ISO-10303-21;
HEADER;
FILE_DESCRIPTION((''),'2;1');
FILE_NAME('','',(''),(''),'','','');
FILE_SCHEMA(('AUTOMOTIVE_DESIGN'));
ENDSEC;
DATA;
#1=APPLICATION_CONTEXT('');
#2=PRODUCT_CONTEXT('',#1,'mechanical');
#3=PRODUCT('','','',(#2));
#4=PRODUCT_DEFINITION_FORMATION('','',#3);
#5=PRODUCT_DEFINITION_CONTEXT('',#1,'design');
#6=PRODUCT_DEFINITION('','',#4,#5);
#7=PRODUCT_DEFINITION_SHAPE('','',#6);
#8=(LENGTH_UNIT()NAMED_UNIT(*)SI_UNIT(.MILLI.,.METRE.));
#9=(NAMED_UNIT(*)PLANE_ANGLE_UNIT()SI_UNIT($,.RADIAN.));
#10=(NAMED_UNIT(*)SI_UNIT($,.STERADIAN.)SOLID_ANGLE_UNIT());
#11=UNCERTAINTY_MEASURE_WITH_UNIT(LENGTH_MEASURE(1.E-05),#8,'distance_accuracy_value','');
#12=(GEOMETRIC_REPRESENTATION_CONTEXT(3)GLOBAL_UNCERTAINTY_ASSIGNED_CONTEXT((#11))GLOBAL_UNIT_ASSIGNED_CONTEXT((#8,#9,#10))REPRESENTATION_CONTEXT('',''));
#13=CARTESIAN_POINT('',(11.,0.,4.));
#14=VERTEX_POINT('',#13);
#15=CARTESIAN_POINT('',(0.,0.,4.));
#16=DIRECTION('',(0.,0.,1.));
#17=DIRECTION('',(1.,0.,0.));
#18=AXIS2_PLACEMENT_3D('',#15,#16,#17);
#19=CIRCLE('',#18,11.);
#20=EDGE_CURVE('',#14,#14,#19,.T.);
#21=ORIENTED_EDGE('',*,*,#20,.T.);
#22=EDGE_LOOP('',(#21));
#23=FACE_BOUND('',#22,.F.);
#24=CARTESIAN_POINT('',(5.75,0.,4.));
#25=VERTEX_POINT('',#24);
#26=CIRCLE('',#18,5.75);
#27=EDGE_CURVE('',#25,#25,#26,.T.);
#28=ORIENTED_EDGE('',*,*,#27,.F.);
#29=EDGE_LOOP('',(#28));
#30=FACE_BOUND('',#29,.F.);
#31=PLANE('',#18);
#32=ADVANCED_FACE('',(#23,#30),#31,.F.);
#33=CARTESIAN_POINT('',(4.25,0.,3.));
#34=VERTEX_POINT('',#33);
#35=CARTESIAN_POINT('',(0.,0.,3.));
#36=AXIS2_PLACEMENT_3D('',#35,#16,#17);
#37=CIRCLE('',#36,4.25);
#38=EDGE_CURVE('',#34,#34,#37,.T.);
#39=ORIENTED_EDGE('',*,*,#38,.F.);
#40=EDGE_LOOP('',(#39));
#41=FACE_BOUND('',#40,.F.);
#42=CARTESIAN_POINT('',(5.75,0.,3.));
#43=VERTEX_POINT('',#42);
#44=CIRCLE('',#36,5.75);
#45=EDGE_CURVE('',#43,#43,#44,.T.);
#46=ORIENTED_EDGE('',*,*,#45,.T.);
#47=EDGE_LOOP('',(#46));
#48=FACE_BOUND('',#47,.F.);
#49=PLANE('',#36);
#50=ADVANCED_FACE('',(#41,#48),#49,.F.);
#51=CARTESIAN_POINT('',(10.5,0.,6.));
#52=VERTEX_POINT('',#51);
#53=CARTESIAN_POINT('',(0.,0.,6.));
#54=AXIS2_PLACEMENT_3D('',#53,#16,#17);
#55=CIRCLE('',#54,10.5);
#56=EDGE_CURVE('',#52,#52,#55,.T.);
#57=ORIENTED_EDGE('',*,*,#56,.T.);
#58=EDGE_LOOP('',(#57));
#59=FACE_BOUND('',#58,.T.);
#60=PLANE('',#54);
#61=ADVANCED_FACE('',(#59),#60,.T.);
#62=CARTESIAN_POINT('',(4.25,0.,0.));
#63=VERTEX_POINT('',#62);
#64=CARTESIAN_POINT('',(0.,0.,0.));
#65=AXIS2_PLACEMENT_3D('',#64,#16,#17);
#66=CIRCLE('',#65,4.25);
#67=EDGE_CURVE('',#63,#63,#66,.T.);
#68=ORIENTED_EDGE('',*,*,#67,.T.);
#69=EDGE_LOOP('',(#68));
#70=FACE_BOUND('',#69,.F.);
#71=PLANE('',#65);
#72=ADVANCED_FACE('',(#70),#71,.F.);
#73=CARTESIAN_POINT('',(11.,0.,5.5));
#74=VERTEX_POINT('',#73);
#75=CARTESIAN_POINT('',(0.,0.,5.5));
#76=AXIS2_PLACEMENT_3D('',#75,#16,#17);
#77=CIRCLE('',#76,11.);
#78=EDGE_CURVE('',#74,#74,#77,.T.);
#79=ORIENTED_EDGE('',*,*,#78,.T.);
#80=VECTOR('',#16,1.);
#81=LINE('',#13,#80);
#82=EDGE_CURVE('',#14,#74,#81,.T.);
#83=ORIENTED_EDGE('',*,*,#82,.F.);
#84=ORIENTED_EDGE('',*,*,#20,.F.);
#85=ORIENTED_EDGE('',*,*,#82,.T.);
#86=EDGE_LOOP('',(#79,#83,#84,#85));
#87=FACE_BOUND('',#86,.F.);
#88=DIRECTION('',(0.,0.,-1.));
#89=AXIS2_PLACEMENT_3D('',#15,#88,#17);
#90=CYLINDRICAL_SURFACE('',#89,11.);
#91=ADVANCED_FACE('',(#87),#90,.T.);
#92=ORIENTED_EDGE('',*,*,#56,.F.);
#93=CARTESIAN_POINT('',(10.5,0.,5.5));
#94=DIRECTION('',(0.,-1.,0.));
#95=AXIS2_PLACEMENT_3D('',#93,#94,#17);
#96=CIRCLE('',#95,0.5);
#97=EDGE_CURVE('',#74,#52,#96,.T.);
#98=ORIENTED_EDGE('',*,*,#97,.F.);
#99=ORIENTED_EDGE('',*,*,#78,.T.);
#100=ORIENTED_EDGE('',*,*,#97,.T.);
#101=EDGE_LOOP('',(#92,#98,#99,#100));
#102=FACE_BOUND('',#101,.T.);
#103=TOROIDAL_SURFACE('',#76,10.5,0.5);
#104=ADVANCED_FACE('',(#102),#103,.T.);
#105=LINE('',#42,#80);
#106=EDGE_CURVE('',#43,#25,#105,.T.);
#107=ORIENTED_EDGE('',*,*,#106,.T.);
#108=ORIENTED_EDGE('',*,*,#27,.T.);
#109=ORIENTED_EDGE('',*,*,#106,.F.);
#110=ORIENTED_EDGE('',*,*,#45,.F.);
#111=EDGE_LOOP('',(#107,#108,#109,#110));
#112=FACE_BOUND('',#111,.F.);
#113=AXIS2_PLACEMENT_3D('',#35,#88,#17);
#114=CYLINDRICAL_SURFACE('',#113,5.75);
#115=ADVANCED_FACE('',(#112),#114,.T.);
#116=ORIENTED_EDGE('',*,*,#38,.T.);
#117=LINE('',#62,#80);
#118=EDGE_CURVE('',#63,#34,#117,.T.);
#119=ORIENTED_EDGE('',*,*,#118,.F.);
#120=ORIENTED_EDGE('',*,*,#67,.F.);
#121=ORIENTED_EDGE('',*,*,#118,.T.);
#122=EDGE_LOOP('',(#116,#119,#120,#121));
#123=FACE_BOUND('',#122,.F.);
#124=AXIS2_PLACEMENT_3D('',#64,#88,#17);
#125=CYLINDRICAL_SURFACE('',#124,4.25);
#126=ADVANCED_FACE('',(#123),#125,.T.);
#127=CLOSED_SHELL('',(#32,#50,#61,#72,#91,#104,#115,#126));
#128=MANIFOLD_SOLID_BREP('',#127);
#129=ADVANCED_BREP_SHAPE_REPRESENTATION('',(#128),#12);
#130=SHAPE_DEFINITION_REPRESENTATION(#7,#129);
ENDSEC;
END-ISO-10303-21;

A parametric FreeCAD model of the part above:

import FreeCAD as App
import Part
import Sketcher
from FreeCAD import Vector
Q = App.Units.Quantity


def edges_at(feature, points):
    """Names of the edges that pass closest to the given points."""
    edges = feature.Shape.Edges
    near = lambda p: min(range(len(edges)), key=lambda i: edges[i].distToShape(Part.Vertex(*p))[0])
    return sorted({f"Edge{near(p) + 1}" for p in points})

doc = App.newDocument("Part")
body = doc.addObject("PartDesign::Body", "Body")

# Sketch on XY plane
sketch1 = body.newObject("Sketcher::SketchObject", "Sketch")
sketch1.AttachmentSupport = (doc.getObject("XY_Plane"), [""])
sketch1.MapMode = "FlatFace"
sketch1.addGeometry(Part.Circle(Vector(0, 0, 0), Vector(0, 0, 1), 4.2), False)
sketch1.addConstraint([
    Sketcher.Constraint("Coincident", 0, 3, -1, 1),
    Sketcher.Constraint("Diameter", 0, Q("8.5 mm")),
])
pad1 = body.newObject("PartDesign::Pad", "Pad")
pad1.Profile = sketch1
pad1.Length = 3

# Sketch on XY plane
sketch2 = body.newObject("Sketcher::SketchObject", "Sketch001")
sketch2.AttachmentSupport = (doc.getObject("XY_Plane"), [""])
sketch2.MapMode = "FlatFace"
sketch2.AttachmentOffset = App.Placement(Vector(0, 0, 3), App.Rotation())
sketch2.addGeometry(Part.Circle(Vector(0, 0, 0), Vector(0, 0, 1), 6), False)
sketch2.addConstraint([
    Sketcher.Constraint("Coincident", 0, 3, -1, 1),
    Sketcher.Constraint("Diameter", 0, Q("11.5 mm")),
])
pad2 = body.newObject("PartDesign::Pad", "Pad001")
pad2.Profile = sketch2
pad2.Length = 1

# Sketch on XY plane
sketch3 = body.newObject("Sketcher::SketchObject", "Sketch002")
sketch3.AttachmentSupport = (doc.getObject("XY_Plane"), [""])
sketch3.MapMode = "FlatFace"
sketch3.AttachmentOffset = App.Placement(Vector(0, 0, 4), App.Rotation())
sketch3.addGeometry(Part.Circle(Vector(0, 0, 0), Vector(0, 0, 1), 11), False)
sketch3.addConstraint([
    Sketcher.Constraint("Coincident", 0, 3, -1, 1),
    Sketcher.Constraint("Diameter", 0, Q("22 mm")),
])
pad3 = body.newObject("PartDesign::Pad", "Pad002")
pad3.Profile = sketch3
pad3.Length = 2
doc.recompute()

fillet = body.newObject("PartDesign::Fillet", "Fillet")
fillet.Base = (pad3, edges_at(pad3, [(-11, 0, 6)]))
fillet.Radius = 0.5

doc.recompute()
